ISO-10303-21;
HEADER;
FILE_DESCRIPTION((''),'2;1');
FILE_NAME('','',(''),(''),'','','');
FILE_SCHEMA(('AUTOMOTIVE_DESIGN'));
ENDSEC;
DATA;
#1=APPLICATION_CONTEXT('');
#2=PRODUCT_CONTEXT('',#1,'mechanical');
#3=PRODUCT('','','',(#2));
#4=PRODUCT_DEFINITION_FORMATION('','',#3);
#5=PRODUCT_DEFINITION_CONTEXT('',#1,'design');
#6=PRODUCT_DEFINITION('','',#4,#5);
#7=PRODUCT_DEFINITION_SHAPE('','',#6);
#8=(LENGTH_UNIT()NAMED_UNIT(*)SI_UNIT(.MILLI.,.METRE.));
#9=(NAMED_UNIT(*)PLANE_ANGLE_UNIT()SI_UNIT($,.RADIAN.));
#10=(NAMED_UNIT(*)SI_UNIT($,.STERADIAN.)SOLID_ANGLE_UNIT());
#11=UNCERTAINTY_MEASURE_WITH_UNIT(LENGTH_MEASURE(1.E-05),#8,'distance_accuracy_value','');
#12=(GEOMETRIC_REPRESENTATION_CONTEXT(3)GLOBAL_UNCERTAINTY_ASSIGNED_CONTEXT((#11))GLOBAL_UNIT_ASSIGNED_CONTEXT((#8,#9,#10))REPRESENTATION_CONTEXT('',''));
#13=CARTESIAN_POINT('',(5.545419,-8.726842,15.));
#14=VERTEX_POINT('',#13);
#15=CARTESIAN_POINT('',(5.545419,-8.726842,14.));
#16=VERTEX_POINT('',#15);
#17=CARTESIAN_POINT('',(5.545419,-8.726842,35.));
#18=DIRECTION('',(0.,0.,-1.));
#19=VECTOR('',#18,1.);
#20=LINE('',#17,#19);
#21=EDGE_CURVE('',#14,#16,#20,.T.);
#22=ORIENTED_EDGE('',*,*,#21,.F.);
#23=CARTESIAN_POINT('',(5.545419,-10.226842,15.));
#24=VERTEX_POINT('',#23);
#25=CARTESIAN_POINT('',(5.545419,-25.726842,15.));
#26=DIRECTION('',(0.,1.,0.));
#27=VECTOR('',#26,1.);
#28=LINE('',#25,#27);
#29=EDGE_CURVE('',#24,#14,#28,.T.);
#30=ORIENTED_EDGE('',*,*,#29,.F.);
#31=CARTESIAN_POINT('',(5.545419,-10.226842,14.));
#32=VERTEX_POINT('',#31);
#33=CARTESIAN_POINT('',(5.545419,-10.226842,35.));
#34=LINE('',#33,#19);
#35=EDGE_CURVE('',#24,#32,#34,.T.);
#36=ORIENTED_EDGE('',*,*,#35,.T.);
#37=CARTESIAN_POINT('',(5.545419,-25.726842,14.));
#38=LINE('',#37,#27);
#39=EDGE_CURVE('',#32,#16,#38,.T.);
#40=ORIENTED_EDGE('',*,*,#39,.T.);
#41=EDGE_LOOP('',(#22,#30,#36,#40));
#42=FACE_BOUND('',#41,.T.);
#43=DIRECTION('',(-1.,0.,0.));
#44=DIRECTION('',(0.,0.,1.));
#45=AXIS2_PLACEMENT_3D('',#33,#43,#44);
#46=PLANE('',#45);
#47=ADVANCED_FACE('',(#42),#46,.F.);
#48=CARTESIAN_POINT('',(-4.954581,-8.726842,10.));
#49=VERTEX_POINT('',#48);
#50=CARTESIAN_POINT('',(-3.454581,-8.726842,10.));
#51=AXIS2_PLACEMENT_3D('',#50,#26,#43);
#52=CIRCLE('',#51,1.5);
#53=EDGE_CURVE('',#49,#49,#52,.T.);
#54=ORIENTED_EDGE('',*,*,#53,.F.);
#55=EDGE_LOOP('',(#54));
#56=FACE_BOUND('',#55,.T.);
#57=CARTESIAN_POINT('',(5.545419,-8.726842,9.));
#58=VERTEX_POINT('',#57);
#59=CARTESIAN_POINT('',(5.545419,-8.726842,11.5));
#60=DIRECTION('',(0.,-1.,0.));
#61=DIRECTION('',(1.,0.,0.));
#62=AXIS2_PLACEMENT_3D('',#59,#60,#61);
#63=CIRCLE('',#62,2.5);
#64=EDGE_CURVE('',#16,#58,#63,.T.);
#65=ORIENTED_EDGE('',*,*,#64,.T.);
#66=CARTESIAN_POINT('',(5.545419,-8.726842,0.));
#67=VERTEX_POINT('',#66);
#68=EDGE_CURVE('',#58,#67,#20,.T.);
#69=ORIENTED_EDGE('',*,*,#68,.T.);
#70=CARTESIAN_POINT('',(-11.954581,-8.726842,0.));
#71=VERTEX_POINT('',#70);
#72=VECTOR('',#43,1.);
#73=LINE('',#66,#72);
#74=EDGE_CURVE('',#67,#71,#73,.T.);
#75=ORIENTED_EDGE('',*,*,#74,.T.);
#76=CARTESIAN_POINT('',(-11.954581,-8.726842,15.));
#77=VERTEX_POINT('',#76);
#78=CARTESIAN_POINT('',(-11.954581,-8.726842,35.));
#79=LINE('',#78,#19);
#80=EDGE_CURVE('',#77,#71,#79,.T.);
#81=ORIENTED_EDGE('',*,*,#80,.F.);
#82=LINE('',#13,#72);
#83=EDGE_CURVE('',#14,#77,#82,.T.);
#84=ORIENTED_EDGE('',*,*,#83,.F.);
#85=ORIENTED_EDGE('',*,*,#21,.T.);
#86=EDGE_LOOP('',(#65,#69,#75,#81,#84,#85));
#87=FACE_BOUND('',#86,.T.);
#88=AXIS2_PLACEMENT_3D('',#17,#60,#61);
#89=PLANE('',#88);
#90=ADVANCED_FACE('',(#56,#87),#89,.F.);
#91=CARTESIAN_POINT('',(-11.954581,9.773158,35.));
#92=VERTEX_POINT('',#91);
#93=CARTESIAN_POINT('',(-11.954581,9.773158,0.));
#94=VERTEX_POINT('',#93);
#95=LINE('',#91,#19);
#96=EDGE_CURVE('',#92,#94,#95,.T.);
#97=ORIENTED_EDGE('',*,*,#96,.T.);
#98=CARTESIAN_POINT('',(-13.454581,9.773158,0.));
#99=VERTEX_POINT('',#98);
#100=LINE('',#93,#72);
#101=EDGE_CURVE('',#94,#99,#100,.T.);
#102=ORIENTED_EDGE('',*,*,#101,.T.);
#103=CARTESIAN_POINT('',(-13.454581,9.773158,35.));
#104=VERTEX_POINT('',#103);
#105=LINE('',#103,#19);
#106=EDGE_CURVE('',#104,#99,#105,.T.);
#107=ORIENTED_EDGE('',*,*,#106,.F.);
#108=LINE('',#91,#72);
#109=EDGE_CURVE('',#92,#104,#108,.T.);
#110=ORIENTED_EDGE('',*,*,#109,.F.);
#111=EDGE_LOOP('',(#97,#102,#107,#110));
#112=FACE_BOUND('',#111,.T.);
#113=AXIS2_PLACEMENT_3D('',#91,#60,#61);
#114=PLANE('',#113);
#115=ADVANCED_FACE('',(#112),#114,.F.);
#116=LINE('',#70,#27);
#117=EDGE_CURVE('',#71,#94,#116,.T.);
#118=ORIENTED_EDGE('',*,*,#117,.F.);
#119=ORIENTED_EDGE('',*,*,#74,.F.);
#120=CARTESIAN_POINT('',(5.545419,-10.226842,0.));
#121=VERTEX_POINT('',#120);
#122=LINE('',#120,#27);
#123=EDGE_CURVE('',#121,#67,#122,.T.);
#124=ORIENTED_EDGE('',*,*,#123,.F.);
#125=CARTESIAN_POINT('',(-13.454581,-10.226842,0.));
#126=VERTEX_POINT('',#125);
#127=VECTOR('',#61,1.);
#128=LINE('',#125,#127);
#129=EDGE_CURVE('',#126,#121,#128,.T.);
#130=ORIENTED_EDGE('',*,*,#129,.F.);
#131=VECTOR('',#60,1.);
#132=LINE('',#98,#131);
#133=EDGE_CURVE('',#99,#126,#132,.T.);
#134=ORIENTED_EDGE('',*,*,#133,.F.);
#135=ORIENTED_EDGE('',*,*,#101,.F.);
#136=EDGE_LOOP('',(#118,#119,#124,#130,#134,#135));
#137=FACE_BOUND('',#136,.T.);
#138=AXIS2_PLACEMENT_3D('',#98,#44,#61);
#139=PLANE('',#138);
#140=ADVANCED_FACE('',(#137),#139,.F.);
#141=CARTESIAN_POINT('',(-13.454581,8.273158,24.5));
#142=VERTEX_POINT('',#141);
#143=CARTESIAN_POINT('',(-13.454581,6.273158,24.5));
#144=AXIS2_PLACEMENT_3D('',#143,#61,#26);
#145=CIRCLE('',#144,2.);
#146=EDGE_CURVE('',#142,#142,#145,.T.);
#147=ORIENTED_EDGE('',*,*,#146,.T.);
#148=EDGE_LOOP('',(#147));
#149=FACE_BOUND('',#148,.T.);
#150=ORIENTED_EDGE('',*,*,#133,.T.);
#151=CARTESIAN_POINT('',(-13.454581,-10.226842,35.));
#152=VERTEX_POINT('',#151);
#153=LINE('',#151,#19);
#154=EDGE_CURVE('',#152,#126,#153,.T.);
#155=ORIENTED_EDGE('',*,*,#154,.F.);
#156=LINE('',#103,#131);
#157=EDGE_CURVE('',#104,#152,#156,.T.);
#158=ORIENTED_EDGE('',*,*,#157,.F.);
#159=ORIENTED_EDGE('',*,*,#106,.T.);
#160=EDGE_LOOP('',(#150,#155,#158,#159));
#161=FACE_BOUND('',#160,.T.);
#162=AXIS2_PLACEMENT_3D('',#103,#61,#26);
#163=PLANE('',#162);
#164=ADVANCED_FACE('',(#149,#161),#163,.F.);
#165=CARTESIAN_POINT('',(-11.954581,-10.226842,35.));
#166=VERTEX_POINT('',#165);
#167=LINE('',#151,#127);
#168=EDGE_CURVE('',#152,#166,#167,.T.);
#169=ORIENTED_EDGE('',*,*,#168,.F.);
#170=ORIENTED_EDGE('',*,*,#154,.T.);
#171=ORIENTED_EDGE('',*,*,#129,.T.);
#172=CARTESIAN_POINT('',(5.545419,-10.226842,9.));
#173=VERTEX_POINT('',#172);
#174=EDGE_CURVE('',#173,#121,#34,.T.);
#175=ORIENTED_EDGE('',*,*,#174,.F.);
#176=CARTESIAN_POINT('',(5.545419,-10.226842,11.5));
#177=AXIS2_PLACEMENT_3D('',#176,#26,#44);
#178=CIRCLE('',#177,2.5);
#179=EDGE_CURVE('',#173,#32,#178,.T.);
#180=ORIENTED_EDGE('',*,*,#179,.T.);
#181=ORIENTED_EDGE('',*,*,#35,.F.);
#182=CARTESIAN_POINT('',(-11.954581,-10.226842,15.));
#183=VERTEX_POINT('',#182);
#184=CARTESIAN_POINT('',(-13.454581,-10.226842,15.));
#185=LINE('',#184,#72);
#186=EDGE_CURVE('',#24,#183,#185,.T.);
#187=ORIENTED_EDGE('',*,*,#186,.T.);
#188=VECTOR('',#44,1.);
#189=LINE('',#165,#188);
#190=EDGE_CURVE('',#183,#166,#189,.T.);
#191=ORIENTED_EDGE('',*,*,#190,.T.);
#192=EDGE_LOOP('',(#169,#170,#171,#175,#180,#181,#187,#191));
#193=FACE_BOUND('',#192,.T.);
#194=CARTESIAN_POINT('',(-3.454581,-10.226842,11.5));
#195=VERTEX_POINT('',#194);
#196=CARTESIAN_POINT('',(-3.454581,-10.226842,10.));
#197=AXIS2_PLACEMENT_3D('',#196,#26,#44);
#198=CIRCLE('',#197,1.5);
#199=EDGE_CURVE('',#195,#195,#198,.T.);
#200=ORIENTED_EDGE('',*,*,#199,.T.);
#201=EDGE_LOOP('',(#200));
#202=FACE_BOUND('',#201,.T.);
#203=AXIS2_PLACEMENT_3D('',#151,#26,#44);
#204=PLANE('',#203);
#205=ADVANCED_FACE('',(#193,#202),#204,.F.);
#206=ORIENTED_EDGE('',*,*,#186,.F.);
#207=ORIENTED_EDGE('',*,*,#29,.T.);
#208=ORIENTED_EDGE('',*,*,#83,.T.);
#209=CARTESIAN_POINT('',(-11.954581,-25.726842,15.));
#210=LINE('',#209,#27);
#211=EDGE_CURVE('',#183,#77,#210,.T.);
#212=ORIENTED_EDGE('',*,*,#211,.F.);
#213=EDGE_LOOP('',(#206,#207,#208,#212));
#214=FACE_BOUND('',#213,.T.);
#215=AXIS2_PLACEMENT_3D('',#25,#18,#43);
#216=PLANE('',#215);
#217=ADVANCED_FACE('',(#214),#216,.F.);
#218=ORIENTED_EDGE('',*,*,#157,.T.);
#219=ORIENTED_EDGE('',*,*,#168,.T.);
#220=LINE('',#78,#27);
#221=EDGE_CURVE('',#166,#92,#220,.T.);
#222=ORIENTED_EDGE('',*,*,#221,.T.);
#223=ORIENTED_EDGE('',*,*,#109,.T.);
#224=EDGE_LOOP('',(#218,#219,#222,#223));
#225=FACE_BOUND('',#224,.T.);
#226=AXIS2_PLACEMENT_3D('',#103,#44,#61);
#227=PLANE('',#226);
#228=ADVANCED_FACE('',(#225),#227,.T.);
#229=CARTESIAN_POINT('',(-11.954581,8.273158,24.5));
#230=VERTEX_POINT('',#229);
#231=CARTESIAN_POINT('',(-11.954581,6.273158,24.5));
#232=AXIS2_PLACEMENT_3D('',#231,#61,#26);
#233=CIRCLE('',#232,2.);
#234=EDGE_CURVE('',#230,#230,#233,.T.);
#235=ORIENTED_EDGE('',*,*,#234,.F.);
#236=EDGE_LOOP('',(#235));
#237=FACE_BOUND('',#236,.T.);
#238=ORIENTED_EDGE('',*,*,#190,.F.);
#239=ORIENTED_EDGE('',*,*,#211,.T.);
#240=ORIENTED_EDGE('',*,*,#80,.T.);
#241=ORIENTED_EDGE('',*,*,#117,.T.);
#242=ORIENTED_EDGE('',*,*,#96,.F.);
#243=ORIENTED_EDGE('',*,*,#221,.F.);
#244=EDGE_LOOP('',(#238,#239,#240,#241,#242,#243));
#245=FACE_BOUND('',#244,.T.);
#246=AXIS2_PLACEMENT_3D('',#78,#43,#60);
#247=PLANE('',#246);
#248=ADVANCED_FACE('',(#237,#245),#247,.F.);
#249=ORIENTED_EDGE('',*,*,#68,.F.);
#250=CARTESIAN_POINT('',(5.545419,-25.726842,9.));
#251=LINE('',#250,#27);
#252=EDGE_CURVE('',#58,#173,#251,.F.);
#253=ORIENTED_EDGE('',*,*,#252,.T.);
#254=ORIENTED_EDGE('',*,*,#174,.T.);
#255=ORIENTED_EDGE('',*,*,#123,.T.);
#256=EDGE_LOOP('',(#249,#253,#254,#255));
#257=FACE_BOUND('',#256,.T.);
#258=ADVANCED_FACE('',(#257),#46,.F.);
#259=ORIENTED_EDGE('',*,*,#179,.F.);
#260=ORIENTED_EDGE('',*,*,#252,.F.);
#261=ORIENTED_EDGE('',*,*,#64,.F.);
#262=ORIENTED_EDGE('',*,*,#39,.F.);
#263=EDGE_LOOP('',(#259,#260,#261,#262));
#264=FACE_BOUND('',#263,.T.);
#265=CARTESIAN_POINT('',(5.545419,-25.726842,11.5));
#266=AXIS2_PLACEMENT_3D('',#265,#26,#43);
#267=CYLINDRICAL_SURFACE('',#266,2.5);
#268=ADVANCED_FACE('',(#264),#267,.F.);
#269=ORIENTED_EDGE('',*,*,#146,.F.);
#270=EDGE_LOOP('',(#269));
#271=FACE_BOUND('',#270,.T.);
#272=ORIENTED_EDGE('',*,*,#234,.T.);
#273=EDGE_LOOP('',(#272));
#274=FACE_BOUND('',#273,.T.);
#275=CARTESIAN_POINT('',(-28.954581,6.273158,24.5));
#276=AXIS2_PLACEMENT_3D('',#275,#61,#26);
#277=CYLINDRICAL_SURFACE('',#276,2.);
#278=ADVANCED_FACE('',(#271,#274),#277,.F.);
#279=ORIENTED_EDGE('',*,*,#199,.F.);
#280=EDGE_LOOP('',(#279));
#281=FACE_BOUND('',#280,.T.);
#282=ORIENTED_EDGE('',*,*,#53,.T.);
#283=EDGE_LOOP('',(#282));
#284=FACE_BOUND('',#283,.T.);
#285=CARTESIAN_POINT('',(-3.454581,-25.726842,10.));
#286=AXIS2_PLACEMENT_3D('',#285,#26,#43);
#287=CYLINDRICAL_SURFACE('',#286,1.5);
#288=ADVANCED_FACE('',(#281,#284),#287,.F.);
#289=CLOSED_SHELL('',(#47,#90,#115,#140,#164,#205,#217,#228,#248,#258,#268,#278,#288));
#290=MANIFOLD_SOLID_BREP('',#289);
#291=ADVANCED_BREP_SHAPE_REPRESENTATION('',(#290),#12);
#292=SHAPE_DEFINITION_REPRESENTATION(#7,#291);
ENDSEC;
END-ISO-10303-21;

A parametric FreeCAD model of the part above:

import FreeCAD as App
import Part
import Sketcher

doc = App.newDocument("Part")
body = doc.addObject("PartDesign::Body", "Body")

# Sketch on XY plane
sketch1 = body.newObject("Sketcher::SketchObject", "Sketch")
sketch1.AttachmentSupport = (doc.getObject("XY_Plane"), [""])
sketch1.MapMode = "FlatFace"
sketch1.addGeometry([
    Part.LineSegment(App.Vector(-13.5, 9.8, 0), App.Vector(-13.5, -10.2, 0)),  # 0
    Part.LineSegment(App.Vector(-13.5, -10.2, 0), App.Vector(5.5, -10.2, 0)),  # 1
    Part.LineSegment(App.Vector(5.5, -10.2, 0), App.Vector(5.5, -8.7, 0)),  # 2
    Part.LineSegment(App.Vector(5.5, -8.7, 0), App.Vector(-12, -8.7, 0)),  # 3
    Part.LineSegment(App.Vector(-12, -8.7, 0), App.Vector(-12, 9.8, 0)),  # 4
    Part.LineSegment(App.Vector(-12, 9.8, 0), App.Vector(-13.5, 9.8, 0)),  # 5
], False)
sketch1.addConstraint([
    Sketcher.Constraint("Coincident", 0, 2, 1, 1),
    Sketcher.Constraint("Coincident", 1, 2, 2, 1),
    Sketcher.Constraint("Coincident", 2, 2, 3, 1),
    Sketcher.Constraint("Coincident", 3, 2, 4, 1),
    Sketcher.Constraint("Coincident", 4, 2, 5, 1),
    Sketcher.Constraint("Coincident", 5, 2, 0, 1),
    Sketcher.Constraint("Vertical", 0),
    Sketcher.Constraint("Horizontal", 1),
    Sketcher.Constraint("Vertical", 2),
    Sketcher.Constraint("Horizontal", 3),
    Sketcher.Constraint("Vertical", 4),
    Sketcher.Constraint("Horizontal", 5),
    Sketcher.Constraint("Equal", 5, 2),
    Sketcher.Constraint("DistanceX", 1, 1, 1, 2, 19.0),
    Sketcher.Constraint("DistanceY", 0, 2, 0, 1, 20.0),
    Sketcher.Constraint("DistanceX", 3, 2, 3, 1, 17.5),
    Sketcher.Constraint("DistanceX", 0, 2, -1, 1, 13.454581),
    Sketcher.Constraint("DistanceY", 0, 2, -1, 1, 10.226842),
])
pad1 = body.newObject("PartDesign::Pad", "Pad")
pad1.Profile = sketch1
pad1.Length = 35

# Sketch on YZ plane
sketch2 = body.newObject("Sketcher::SketchObject", "Sketch001")
sketch2.AttachmentSupport = (doc.getObject("YZ_Plane"), [""])
sketch2.MapMode = "FlatFace"
sketch2.AttachmentOffset = App.Placement(App.Vector(0, 0, -11.954581), App.Rotation())
sketch2.addGeometry(Part.Circle(App.Vector(6.3, 24.5, 0), App.Vector(0, 0, 1), 2), False)
sketch2.addConstraint([
    Sketcher.Constraint("Diameter", 0, 4.0),
    Sketcher.Constraint("DistanceY", -1, 1, 0, 3, 24.5),
    Sketcher.Constraint("DistanceX", -1, 1, 0, 3, 6.273158),
])
pocket1 = body.newObject("PartDesign::Pocket", "Pocket")
pocket1.Profile = sketch2
pocket1.Length = 17

# Sketch on XZ plane
sketch3 = body.newObject("Sketcher::SketchObject", "Sketch002")
sketch3.AttachmentSupport = (doc.getObject("XZ_Plane"), [""])
sketch3.MapMode = "FlatFace"
sketch3.AttachmentOffset = App.Placement(App.Vector(0, 0, 8.726842), App.Rotation())
sketch3.addGeometry([
    Part.Circle(App.Vector(-3.5, 10, 0), App.Vector(0, 0, 1), 1.5),  # 0
    Part.Circle(App.Vector(5.5, 11.5, 0), App.Vector(0, 0, 1), 2.5),  # 1
    Part.LineSegment(App.Vector(5.5, 35, 0), App.Vector(5.5, 15, 0)),  # 2
    Part.LineSegment(App.Vector(5.5, 15, 0), App.Vector(-12, 15, 0)),  # 3
    Part.LineSegment(App.Vector(-12, 15, 0), App.Vector(-12, 35, 0)),  # 4
    Part.LineSegment(App.Vector(-12, 35, 0), App.Vector(5.5, 35, 0)),  # 5
], False)
sketch3.addConstraint([
    Sketcher.Constraint("Coincident", 2, 2, 3, 1),
    Sketcher.Constraint("Coincident", 3, 2, 4, 1),
    Sketcher.Constraint("Coincident", 4, 2, 5, 1),
    Sketcher.Constraint("Coincident", 5, 2, 2, 1),
    Sketcher.Constraint("Vertical", 2),
    Sketcher.Constraint("Horizontal", 3),
    Sketcher.Constraint("Vertical", 4),
    Sketcher.Constraint("Horizontal", 5),
    Sketcher.Constraint("Vertical", 1, 3, 2, 2),
    Sketcher.Constraint("Diameter", 0, 3.0),
    Sketcher.Constraint("Diameter", 1, 5.0),
    Sketcher.Constraint("DistanceY", 2, 2, 2, 1, 20.0),
    Sketcher.Constraint("DistanceX", 3, 2, 3, 1, 17.5),
    Sketcher.Constraint("DistanceY", -1, 1, 0, 3, 10.0),
    Sketcher.Constraint("DistanceY", -1, 1, 2, 2, 15.0),
    Sketcher.Constraint("DistanceX", 0, 3, 1, 3, 9.0),
    Sketcher.Constraint("DistanceY", -1, 1, 1, 3, 11.5),
    Sketcher.Constraint("DistanceX", 0, 3, -1, 1, 3.454581),
])
pocket2 = body.newObject("PartDesign::Pocket", "Pocket001")
pocket2.Profile = sketch3
pocket2.Length = 17
pocket2.Reversed = True

doc.recompute()
